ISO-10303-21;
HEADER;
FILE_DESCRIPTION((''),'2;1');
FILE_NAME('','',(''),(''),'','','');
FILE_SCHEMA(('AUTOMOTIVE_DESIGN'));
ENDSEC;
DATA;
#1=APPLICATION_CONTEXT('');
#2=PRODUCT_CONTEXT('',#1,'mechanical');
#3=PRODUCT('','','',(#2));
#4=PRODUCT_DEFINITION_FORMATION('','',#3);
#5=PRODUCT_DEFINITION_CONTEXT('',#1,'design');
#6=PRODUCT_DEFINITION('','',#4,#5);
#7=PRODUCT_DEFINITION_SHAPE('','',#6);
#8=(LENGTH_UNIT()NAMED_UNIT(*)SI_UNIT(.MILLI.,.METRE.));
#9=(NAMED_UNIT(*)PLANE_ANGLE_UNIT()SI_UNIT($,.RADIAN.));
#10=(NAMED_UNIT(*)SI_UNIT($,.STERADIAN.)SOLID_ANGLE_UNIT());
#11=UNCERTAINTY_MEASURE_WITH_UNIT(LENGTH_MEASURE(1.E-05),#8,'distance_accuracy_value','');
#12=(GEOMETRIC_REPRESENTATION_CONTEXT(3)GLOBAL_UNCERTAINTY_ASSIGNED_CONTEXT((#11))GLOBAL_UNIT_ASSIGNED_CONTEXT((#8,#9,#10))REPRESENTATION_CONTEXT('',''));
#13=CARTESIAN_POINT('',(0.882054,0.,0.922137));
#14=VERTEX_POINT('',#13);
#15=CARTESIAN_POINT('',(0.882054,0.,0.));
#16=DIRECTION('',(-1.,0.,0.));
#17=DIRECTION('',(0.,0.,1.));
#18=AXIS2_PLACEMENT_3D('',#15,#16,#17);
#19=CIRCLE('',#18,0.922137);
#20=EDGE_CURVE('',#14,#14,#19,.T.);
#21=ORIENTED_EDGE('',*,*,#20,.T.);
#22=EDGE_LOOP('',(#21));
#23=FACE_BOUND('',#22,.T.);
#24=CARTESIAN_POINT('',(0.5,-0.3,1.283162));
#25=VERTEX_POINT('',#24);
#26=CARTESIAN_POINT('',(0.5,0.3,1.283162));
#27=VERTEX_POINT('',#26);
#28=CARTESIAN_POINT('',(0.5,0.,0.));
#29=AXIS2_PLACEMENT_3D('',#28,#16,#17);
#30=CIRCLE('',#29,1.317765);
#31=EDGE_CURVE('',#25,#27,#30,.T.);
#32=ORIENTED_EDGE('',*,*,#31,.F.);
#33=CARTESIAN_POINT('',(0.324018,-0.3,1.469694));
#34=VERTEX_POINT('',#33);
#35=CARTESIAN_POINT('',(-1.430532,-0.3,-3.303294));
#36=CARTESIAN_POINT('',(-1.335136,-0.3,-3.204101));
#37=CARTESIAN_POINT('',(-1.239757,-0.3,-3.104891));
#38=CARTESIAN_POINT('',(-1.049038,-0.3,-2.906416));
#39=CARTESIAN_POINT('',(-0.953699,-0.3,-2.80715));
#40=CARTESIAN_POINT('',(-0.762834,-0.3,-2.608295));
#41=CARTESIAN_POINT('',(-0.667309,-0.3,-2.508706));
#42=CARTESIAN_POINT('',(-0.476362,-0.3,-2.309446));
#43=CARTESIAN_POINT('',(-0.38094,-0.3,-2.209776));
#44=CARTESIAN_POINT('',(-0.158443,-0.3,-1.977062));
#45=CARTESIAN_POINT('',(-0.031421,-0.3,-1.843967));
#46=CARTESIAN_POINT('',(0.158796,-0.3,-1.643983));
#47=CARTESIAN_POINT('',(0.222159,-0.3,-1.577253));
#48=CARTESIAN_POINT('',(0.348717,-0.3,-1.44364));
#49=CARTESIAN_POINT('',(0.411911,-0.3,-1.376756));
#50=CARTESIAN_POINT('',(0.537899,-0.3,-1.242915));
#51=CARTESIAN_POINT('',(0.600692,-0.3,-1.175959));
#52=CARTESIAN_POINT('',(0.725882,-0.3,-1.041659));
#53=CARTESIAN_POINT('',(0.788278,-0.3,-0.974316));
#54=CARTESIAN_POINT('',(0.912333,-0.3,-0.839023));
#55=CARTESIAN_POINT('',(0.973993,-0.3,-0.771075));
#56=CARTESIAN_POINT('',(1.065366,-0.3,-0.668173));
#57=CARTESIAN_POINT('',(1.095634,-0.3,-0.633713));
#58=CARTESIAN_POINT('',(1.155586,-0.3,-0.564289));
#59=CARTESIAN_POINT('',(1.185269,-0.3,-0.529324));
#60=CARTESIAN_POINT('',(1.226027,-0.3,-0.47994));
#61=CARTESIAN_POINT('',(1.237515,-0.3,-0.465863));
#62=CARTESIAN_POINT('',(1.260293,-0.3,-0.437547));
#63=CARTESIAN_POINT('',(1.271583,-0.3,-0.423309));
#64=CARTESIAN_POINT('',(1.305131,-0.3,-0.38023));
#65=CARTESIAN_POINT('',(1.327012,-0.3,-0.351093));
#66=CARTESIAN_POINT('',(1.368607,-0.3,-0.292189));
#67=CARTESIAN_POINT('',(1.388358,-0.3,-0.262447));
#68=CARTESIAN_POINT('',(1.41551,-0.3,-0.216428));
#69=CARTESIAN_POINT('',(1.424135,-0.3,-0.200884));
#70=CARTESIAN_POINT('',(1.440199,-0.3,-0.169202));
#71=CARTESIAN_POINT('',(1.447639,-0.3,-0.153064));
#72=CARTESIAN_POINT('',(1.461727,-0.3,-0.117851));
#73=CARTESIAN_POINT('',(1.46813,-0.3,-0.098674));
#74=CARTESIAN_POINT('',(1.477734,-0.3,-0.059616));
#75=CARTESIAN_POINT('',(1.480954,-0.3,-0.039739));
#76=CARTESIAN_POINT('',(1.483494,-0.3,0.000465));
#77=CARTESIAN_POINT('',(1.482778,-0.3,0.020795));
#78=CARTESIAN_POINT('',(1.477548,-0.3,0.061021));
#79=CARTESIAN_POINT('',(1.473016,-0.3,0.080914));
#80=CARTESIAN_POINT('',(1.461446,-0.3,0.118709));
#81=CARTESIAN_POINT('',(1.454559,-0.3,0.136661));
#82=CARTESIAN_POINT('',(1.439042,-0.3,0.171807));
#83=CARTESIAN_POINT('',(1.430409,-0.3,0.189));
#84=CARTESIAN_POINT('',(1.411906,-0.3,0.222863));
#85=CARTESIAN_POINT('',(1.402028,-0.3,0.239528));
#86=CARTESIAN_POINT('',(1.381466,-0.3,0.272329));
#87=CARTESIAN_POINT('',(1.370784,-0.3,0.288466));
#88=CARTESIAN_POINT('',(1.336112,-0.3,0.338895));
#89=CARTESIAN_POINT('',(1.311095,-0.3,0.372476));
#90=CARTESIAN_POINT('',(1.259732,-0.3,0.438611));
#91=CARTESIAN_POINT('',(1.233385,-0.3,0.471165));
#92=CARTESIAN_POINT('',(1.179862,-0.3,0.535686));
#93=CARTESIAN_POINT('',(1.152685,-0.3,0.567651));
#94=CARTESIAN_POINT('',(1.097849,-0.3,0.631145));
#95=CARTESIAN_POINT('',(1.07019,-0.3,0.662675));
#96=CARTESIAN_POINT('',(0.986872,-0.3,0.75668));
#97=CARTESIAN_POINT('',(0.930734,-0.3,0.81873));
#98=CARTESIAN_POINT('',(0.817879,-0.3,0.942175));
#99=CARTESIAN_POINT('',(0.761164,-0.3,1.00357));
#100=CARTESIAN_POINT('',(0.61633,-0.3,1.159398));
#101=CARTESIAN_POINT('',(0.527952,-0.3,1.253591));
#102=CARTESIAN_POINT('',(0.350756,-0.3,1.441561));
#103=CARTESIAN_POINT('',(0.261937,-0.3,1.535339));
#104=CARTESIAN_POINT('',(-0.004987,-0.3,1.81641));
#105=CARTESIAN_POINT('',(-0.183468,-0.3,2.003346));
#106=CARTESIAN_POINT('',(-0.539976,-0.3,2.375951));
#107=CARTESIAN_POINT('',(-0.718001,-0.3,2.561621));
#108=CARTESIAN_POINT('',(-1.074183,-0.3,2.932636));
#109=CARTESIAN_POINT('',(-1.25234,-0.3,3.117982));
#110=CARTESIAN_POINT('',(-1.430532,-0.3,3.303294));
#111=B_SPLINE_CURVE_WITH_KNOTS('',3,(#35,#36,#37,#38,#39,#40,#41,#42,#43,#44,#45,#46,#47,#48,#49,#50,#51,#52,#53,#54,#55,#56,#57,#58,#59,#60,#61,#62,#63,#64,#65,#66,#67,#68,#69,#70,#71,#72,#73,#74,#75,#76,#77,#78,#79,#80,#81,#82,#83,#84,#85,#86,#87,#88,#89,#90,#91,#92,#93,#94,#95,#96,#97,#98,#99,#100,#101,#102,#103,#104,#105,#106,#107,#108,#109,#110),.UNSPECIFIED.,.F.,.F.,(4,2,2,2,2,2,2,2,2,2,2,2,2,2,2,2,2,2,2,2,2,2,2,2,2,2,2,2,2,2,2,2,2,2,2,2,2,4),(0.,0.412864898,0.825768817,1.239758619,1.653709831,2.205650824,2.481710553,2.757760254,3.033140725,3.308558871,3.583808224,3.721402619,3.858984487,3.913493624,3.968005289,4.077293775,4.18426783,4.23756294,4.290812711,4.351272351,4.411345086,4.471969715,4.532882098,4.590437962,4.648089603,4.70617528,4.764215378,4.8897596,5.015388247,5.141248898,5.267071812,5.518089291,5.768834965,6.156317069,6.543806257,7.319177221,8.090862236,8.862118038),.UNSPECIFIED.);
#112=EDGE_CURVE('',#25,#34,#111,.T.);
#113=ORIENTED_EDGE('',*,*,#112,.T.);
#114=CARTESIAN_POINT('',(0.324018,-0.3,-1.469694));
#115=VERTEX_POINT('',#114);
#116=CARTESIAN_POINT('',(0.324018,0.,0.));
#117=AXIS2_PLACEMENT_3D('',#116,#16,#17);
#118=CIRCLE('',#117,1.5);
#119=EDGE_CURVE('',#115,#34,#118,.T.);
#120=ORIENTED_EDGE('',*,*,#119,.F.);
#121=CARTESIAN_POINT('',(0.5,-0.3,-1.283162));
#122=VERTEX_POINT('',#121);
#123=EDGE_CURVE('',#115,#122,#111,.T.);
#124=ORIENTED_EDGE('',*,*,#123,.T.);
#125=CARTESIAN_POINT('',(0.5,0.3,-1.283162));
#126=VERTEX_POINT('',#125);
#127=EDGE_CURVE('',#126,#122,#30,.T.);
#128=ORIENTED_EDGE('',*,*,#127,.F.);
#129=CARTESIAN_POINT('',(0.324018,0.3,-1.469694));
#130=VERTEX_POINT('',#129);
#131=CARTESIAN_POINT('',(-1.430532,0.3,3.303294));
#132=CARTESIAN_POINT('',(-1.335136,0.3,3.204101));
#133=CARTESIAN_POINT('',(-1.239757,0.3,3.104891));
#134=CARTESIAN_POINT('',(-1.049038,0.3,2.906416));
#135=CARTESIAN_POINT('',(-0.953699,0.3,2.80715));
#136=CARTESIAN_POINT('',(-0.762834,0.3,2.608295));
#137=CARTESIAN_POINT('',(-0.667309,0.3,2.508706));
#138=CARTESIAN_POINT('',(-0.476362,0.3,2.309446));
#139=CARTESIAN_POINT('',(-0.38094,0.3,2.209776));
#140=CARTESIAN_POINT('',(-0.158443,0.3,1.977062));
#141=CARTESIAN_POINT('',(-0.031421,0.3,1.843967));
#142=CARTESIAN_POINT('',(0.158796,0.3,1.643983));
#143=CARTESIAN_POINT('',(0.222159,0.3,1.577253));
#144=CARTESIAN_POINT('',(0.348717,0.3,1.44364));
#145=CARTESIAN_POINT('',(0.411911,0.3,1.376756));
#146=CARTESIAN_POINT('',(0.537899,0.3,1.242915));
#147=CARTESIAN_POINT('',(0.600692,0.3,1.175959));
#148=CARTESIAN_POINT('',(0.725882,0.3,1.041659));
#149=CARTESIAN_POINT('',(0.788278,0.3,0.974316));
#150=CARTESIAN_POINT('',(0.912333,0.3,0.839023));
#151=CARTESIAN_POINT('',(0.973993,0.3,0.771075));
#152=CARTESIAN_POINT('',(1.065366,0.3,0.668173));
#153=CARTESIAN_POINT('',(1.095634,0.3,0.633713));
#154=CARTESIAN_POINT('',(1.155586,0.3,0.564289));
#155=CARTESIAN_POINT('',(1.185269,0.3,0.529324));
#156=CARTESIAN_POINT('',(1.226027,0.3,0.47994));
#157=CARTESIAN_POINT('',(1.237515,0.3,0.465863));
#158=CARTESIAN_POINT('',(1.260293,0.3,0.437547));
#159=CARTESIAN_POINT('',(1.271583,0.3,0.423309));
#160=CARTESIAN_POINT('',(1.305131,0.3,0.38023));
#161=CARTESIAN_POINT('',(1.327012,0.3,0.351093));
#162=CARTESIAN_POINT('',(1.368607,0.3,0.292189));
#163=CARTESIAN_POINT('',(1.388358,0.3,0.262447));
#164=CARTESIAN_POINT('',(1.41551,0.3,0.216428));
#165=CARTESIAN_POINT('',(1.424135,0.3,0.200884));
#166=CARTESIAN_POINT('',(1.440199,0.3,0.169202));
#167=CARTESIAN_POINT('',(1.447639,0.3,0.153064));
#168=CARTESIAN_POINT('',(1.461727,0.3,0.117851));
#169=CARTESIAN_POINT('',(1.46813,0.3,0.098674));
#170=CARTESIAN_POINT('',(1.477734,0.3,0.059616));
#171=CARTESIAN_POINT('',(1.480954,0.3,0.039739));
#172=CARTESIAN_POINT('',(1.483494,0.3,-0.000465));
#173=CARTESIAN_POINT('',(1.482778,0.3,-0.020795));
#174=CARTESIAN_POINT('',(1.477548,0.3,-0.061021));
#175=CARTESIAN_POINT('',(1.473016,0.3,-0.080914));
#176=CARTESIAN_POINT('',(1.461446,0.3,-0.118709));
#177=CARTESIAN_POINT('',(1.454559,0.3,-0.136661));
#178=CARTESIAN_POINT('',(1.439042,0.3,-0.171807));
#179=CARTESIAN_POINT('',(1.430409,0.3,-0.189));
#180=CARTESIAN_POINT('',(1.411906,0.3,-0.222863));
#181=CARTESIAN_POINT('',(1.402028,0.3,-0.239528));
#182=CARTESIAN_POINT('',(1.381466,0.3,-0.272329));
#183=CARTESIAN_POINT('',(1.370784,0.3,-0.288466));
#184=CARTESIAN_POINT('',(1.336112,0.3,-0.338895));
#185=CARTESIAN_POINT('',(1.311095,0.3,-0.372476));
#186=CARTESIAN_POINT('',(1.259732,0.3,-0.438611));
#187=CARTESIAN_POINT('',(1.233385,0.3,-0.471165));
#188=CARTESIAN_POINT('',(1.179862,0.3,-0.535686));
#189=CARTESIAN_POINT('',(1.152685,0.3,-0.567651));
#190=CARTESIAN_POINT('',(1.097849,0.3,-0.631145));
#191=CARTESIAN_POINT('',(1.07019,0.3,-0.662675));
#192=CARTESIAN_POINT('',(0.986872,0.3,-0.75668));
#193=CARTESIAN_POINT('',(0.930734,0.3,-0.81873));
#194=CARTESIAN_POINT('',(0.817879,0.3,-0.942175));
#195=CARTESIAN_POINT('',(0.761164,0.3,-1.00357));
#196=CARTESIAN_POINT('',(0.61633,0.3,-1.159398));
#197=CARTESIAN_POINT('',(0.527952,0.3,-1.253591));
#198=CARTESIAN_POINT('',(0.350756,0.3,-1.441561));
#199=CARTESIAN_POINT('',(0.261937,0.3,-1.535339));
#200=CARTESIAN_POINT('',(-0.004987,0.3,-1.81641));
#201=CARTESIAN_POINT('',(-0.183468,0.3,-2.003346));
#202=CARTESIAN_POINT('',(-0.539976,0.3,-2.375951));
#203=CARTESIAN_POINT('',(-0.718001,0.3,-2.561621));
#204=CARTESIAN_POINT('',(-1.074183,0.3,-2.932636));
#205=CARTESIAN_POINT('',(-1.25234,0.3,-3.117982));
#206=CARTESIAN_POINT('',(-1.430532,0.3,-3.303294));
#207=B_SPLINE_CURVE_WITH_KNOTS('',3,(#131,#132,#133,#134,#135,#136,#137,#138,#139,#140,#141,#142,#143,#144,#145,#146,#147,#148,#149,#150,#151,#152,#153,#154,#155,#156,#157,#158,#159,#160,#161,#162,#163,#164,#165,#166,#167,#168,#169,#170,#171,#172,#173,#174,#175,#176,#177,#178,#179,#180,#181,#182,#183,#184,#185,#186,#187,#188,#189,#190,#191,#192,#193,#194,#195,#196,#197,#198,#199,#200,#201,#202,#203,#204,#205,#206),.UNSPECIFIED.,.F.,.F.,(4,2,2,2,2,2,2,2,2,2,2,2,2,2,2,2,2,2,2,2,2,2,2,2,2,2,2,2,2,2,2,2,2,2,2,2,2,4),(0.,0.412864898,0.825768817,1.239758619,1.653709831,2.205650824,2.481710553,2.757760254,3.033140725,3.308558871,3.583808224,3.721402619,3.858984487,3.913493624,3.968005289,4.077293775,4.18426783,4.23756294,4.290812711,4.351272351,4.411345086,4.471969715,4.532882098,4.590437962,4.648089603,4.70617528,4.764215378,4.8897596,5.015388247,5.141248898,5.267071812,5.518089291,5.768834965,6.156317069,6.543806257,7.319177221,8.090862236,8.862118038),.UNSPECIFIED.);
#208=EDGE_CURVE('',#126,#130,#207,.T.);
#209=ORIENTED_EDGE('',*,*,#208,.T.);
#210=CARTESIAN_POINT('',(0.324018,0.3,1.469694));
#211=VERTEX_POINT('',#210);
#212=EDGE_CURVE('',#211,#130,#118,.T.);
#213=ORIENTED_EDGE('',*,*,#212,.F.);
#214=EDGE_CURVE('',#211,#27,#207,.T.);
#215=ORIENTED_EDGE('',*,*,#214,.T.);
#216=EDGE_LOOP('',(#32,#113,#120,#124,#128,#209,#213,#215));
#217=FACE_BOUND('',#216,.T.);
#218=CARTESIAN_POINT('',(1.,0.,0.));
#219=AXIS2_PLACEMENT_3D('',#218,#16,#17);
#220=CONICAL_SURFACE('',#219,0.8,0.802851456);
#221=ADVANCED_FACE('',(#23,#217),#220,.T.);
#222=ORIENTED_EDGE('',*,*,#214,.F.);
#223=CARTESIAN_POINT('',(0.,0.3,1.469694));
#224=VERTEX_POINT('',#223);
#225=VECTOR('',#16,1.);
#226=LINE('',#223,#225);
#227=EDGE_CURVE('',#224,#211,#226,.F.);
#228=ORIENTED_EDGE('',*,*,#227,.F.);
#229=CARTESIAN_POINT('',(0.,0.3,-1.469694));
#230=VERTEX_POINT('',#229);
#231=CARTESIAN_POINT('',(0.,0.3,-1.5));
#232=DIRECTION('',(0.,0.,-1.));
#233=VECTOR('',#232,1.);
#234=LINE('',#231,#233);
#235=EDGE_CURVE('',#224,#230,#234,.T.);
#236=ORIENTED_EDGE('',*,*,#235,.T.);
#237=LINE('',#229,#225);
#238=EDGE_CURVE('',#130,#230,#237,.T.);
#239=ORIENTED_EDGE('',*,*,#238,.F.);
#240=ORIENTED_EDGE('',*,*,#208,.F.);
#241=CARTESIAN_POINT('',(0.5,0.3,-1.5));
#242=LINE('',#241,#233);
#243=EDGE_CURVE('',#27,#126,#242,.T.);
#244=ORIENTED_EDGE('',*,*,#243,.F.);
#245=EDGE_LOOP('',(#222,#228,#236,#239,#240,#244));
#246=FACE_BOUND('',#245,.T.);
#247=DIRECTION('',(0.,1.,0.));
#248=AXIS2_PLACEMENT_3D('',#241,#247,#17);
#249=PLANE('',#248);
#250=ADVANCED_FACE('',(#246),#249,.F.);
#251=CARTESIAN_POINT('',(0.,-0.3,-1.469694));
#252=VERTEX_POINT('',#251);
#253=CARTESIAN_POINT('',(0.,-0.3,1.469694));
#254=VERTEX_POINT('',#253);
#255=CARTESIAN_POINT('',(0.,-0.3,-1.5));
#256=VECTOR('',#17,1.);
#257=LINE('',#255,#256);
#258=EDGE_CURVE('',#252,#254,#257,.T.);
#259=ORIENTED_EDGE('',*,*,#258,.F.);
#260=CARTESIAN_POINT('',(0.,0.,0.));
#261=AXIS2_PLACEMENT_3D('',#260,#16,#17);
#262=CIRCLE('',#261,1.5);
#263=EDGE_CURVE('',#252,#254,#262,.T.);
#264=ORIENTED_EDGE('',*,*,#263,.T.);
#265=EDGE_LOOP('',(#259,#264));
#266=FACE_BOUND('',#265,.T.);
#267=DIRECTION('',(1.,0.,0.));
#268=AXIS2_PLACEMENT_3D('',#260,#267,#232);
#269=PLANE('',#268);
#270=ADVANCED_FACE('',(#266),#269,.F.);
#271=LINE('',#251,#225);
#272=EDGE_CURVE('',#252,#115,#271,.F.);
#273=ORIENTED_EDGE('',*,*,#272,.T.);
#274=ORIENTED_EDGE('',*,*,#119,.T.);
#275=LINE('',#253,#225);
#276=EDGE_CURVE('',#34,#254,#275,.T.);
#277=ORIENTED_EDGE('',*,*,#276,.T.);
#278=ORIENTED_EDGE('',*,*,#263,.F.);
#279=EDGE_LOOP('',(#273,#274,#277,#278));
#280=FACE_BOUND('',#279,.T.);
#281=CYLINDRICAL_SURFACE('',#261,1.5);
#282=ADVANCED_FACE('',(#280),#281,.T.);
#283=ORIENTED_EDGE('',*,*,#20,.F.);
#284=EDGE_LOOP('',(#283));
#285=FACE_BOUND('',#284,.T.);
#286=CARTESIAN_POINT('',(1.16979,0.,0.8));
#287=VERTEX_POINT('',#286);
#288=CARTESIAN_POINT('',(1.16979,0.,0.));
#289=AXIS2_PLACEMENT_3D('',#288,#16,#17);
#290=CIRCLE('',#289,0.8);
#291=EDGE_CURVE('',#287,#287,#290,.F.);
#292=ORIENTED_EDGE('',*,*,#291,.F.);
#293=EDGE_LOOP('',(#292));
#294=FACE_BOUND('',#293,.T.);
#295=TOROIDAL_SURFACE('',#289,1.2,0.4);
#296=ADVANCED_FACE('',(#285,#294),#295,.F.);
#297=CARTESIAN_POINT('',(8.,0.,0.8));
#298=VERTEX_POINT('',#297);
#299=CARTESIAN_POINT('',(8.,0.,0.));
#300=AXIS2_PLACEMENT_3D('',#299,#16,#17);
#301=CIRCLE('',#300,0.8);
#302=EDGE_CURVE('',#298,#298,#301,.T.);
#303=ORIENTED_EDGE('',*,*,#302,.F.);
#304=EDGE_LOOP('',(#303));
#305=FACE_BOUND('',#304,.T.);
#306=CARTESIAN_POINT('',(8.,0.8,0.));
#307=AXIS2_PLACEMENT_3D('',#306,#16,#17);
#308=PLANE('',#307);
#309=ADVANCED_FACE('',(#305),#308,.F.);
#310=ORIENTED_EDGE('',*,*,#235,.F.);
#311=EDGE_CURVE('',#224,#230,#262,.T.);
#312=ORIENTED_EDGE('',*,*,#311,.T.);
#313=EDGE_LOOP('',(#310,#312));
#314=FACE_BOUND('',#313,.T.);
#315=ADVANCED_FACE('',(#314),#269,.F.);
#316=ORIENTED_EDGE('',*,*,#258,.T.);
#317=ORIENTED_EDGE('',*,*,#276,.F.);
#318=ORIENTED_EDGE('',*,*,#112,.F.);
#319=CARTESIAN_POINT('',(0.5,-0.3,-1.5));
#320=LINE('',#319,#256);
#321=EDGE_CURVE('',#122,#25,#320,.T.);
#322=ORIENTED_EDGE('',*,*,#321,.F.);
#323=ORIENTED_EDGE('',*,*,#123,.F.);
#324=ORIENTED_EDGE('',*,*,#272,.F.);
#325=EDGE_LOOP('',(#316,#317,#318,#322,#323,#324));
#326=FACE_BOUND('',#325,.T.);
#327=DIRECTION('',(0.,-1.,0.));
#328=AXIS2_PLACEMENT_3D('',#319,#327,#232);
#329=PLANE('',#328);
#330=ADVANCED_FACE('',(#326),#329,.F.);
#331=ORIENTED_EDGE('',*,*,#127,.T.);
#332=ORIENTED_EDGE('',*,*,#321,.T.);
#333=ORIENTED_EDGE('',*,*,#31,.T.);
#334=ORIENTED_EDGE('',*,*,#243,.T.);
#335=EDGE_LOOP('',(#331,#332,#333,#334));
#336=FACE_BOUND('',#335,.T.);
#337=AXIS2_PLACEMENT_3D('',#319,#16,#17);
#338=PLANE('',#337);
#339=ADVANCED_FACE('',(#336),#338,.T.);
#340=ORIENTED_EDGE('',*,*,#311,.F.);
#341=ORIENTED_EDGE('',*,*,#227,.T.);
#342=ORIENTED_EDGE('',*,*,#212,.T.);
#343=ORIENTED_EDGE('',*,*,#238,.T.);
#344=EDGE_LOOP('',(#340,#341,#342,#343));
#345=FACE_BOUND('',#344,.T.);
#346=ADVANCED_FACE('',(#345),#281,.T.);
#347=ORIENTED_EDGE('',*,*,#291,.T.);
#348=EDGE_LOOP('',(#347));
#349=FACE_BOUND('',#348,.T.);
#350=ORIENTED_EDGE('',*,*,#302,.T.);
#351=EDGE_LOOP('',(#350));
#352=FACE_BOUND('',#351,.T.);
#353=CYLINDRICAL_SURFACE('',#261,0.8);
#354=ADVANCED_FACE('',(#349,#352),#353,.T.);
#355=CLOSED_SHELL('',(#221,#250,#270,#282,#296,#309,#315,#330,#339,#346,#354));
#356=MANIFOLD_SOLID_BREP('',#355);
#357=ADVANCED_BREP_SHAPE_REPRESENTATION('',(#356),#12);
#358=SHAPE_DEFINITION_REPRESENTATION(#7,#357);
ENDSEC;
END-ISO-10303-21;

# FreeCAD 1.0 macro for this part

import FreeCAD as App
import Part
import Sketcher
Q = App.Units.Quantity


def edges_at(feature, points):
    """Names of the edges that pass closest to the given points."""
    edges = feature.Shape.Edges
    near = lambda p: min(range(len(edges)), key=lambda i: edges[i].distToShape(Part.Vertex(*p))[0])
    return sorted({f"Edge{near(p) + 1}" for p in points})


def add_polygon(sketch, points):
    """Adds a closed chain of lines whose ends are joined by coincident constraints."""
    first, n = sketch.GeometryCount, len(points)
    for a, b in zip(points, points[1:] + points[:1]):
        sketch.addGeometry(Part.LineSegment(App.Vector(*a, 0), App.Vector(*b, 0)), False)
    for i in range(n):
        sketch.addConstraint(Sketcher.Constraint("Coincident", first + i, 2, first + (i + 1) % n, 1))

doc = App.newDocument("Part")
body = doc.addObject("PartDesign::Body", "Body")

# Sketch on XY plane
sketch1 = body.newObject("Sketcher::SketchObject", "Sketch")
sketch1.AttachmentSupport = (doc.getObject("XY_Plane"), [""])
sketch1.MapMode = "FlatFace"
add_polygon(sketch1, [(0, 1.5), (0, 0), (8, 0), (8, 0.8), (1, 0.8), (0.32, 1.5)])  # lines 0-5
sketch1.addConstraint([
    Sketcher.Constraint("Vertical", 0),
    Sketcher.Constraint("Horizontal", 1),
    Sketcher.Constraint("Vertical", 2),
    Sketcher.Constraint("Horizontal", 3),
    Sketcher.Constraint("Horizontal", 5),
    Sketcher.Constraint("Coincident", 0, 2, -1, 1),
    Sketcher.Constraint("DistanceX", 1, 1, 1, 2, 8.0),
    Sketcher.Constraint("DistanceX", 3, 2, 3, 1, 7.0),
    Sketcher.Constraint("Angle", 4, Q("134 deg")),
    Sketcher.Constraint("DistanceY", 0, 2, 0, 1, 1.5),
    Sketcher.Constraint("DistanceY", 2, 1, 2, 2, 0.8),
])
revolution = body.newObject("PartDesign::Revolution", "Revolution")
revolution.Profile = sketch1
revolution.ReferenceAxis = (sketch1, ["H_Axis"])
revolution.Angle = 360
doc.recompute()

fillet = body.newObject("PartDesign::Fillet", "Fillet")
fillet.Base = (revolution, edges_at(revolution, [(1, -0.8, 0)]))
fillet.Radius = 0.4

# Sketch on YZ plane
sketch2 = body.newObject("Sketcher::SketchObject", "Sketch001")
sketch2.AttachmentSupport = (doc.getObject("YZ_Plane"), [""])
sketch2.MapMode = "FlatFace"
add_polygon(sketch2, [(0.3, -1.5), (-0.3, -1.5), (-0.3, 1.5), (0.3, 1.5)])  # lines 0-3
sketch2.addConstraint([
    Sketcher.Constraint("Horizontal", 0),
    Sketcher.Constraint("Vertical", 1),
    Sketcher.Constraint("Horizontal", 2),
    Sketcher.Constraint("Vertical", 3),
    Sketcher.Constraint("Symmetric", 0, 2, 2, 2, -1, 1),
    Sketcher.Constraint("DistanceY", 1, 1, 1, 2, 3.0),
    Sketcher.Constraint("DistanceX", 0, 2, 0, 1, 0.6),
])
pocket1 = body.newObject("PartDesign::Pocket", "Pocket")
pocket1.Profile = sketch2
pocket1.Length = 0.5
pocket1.Reversed = True

doc.recompute()
